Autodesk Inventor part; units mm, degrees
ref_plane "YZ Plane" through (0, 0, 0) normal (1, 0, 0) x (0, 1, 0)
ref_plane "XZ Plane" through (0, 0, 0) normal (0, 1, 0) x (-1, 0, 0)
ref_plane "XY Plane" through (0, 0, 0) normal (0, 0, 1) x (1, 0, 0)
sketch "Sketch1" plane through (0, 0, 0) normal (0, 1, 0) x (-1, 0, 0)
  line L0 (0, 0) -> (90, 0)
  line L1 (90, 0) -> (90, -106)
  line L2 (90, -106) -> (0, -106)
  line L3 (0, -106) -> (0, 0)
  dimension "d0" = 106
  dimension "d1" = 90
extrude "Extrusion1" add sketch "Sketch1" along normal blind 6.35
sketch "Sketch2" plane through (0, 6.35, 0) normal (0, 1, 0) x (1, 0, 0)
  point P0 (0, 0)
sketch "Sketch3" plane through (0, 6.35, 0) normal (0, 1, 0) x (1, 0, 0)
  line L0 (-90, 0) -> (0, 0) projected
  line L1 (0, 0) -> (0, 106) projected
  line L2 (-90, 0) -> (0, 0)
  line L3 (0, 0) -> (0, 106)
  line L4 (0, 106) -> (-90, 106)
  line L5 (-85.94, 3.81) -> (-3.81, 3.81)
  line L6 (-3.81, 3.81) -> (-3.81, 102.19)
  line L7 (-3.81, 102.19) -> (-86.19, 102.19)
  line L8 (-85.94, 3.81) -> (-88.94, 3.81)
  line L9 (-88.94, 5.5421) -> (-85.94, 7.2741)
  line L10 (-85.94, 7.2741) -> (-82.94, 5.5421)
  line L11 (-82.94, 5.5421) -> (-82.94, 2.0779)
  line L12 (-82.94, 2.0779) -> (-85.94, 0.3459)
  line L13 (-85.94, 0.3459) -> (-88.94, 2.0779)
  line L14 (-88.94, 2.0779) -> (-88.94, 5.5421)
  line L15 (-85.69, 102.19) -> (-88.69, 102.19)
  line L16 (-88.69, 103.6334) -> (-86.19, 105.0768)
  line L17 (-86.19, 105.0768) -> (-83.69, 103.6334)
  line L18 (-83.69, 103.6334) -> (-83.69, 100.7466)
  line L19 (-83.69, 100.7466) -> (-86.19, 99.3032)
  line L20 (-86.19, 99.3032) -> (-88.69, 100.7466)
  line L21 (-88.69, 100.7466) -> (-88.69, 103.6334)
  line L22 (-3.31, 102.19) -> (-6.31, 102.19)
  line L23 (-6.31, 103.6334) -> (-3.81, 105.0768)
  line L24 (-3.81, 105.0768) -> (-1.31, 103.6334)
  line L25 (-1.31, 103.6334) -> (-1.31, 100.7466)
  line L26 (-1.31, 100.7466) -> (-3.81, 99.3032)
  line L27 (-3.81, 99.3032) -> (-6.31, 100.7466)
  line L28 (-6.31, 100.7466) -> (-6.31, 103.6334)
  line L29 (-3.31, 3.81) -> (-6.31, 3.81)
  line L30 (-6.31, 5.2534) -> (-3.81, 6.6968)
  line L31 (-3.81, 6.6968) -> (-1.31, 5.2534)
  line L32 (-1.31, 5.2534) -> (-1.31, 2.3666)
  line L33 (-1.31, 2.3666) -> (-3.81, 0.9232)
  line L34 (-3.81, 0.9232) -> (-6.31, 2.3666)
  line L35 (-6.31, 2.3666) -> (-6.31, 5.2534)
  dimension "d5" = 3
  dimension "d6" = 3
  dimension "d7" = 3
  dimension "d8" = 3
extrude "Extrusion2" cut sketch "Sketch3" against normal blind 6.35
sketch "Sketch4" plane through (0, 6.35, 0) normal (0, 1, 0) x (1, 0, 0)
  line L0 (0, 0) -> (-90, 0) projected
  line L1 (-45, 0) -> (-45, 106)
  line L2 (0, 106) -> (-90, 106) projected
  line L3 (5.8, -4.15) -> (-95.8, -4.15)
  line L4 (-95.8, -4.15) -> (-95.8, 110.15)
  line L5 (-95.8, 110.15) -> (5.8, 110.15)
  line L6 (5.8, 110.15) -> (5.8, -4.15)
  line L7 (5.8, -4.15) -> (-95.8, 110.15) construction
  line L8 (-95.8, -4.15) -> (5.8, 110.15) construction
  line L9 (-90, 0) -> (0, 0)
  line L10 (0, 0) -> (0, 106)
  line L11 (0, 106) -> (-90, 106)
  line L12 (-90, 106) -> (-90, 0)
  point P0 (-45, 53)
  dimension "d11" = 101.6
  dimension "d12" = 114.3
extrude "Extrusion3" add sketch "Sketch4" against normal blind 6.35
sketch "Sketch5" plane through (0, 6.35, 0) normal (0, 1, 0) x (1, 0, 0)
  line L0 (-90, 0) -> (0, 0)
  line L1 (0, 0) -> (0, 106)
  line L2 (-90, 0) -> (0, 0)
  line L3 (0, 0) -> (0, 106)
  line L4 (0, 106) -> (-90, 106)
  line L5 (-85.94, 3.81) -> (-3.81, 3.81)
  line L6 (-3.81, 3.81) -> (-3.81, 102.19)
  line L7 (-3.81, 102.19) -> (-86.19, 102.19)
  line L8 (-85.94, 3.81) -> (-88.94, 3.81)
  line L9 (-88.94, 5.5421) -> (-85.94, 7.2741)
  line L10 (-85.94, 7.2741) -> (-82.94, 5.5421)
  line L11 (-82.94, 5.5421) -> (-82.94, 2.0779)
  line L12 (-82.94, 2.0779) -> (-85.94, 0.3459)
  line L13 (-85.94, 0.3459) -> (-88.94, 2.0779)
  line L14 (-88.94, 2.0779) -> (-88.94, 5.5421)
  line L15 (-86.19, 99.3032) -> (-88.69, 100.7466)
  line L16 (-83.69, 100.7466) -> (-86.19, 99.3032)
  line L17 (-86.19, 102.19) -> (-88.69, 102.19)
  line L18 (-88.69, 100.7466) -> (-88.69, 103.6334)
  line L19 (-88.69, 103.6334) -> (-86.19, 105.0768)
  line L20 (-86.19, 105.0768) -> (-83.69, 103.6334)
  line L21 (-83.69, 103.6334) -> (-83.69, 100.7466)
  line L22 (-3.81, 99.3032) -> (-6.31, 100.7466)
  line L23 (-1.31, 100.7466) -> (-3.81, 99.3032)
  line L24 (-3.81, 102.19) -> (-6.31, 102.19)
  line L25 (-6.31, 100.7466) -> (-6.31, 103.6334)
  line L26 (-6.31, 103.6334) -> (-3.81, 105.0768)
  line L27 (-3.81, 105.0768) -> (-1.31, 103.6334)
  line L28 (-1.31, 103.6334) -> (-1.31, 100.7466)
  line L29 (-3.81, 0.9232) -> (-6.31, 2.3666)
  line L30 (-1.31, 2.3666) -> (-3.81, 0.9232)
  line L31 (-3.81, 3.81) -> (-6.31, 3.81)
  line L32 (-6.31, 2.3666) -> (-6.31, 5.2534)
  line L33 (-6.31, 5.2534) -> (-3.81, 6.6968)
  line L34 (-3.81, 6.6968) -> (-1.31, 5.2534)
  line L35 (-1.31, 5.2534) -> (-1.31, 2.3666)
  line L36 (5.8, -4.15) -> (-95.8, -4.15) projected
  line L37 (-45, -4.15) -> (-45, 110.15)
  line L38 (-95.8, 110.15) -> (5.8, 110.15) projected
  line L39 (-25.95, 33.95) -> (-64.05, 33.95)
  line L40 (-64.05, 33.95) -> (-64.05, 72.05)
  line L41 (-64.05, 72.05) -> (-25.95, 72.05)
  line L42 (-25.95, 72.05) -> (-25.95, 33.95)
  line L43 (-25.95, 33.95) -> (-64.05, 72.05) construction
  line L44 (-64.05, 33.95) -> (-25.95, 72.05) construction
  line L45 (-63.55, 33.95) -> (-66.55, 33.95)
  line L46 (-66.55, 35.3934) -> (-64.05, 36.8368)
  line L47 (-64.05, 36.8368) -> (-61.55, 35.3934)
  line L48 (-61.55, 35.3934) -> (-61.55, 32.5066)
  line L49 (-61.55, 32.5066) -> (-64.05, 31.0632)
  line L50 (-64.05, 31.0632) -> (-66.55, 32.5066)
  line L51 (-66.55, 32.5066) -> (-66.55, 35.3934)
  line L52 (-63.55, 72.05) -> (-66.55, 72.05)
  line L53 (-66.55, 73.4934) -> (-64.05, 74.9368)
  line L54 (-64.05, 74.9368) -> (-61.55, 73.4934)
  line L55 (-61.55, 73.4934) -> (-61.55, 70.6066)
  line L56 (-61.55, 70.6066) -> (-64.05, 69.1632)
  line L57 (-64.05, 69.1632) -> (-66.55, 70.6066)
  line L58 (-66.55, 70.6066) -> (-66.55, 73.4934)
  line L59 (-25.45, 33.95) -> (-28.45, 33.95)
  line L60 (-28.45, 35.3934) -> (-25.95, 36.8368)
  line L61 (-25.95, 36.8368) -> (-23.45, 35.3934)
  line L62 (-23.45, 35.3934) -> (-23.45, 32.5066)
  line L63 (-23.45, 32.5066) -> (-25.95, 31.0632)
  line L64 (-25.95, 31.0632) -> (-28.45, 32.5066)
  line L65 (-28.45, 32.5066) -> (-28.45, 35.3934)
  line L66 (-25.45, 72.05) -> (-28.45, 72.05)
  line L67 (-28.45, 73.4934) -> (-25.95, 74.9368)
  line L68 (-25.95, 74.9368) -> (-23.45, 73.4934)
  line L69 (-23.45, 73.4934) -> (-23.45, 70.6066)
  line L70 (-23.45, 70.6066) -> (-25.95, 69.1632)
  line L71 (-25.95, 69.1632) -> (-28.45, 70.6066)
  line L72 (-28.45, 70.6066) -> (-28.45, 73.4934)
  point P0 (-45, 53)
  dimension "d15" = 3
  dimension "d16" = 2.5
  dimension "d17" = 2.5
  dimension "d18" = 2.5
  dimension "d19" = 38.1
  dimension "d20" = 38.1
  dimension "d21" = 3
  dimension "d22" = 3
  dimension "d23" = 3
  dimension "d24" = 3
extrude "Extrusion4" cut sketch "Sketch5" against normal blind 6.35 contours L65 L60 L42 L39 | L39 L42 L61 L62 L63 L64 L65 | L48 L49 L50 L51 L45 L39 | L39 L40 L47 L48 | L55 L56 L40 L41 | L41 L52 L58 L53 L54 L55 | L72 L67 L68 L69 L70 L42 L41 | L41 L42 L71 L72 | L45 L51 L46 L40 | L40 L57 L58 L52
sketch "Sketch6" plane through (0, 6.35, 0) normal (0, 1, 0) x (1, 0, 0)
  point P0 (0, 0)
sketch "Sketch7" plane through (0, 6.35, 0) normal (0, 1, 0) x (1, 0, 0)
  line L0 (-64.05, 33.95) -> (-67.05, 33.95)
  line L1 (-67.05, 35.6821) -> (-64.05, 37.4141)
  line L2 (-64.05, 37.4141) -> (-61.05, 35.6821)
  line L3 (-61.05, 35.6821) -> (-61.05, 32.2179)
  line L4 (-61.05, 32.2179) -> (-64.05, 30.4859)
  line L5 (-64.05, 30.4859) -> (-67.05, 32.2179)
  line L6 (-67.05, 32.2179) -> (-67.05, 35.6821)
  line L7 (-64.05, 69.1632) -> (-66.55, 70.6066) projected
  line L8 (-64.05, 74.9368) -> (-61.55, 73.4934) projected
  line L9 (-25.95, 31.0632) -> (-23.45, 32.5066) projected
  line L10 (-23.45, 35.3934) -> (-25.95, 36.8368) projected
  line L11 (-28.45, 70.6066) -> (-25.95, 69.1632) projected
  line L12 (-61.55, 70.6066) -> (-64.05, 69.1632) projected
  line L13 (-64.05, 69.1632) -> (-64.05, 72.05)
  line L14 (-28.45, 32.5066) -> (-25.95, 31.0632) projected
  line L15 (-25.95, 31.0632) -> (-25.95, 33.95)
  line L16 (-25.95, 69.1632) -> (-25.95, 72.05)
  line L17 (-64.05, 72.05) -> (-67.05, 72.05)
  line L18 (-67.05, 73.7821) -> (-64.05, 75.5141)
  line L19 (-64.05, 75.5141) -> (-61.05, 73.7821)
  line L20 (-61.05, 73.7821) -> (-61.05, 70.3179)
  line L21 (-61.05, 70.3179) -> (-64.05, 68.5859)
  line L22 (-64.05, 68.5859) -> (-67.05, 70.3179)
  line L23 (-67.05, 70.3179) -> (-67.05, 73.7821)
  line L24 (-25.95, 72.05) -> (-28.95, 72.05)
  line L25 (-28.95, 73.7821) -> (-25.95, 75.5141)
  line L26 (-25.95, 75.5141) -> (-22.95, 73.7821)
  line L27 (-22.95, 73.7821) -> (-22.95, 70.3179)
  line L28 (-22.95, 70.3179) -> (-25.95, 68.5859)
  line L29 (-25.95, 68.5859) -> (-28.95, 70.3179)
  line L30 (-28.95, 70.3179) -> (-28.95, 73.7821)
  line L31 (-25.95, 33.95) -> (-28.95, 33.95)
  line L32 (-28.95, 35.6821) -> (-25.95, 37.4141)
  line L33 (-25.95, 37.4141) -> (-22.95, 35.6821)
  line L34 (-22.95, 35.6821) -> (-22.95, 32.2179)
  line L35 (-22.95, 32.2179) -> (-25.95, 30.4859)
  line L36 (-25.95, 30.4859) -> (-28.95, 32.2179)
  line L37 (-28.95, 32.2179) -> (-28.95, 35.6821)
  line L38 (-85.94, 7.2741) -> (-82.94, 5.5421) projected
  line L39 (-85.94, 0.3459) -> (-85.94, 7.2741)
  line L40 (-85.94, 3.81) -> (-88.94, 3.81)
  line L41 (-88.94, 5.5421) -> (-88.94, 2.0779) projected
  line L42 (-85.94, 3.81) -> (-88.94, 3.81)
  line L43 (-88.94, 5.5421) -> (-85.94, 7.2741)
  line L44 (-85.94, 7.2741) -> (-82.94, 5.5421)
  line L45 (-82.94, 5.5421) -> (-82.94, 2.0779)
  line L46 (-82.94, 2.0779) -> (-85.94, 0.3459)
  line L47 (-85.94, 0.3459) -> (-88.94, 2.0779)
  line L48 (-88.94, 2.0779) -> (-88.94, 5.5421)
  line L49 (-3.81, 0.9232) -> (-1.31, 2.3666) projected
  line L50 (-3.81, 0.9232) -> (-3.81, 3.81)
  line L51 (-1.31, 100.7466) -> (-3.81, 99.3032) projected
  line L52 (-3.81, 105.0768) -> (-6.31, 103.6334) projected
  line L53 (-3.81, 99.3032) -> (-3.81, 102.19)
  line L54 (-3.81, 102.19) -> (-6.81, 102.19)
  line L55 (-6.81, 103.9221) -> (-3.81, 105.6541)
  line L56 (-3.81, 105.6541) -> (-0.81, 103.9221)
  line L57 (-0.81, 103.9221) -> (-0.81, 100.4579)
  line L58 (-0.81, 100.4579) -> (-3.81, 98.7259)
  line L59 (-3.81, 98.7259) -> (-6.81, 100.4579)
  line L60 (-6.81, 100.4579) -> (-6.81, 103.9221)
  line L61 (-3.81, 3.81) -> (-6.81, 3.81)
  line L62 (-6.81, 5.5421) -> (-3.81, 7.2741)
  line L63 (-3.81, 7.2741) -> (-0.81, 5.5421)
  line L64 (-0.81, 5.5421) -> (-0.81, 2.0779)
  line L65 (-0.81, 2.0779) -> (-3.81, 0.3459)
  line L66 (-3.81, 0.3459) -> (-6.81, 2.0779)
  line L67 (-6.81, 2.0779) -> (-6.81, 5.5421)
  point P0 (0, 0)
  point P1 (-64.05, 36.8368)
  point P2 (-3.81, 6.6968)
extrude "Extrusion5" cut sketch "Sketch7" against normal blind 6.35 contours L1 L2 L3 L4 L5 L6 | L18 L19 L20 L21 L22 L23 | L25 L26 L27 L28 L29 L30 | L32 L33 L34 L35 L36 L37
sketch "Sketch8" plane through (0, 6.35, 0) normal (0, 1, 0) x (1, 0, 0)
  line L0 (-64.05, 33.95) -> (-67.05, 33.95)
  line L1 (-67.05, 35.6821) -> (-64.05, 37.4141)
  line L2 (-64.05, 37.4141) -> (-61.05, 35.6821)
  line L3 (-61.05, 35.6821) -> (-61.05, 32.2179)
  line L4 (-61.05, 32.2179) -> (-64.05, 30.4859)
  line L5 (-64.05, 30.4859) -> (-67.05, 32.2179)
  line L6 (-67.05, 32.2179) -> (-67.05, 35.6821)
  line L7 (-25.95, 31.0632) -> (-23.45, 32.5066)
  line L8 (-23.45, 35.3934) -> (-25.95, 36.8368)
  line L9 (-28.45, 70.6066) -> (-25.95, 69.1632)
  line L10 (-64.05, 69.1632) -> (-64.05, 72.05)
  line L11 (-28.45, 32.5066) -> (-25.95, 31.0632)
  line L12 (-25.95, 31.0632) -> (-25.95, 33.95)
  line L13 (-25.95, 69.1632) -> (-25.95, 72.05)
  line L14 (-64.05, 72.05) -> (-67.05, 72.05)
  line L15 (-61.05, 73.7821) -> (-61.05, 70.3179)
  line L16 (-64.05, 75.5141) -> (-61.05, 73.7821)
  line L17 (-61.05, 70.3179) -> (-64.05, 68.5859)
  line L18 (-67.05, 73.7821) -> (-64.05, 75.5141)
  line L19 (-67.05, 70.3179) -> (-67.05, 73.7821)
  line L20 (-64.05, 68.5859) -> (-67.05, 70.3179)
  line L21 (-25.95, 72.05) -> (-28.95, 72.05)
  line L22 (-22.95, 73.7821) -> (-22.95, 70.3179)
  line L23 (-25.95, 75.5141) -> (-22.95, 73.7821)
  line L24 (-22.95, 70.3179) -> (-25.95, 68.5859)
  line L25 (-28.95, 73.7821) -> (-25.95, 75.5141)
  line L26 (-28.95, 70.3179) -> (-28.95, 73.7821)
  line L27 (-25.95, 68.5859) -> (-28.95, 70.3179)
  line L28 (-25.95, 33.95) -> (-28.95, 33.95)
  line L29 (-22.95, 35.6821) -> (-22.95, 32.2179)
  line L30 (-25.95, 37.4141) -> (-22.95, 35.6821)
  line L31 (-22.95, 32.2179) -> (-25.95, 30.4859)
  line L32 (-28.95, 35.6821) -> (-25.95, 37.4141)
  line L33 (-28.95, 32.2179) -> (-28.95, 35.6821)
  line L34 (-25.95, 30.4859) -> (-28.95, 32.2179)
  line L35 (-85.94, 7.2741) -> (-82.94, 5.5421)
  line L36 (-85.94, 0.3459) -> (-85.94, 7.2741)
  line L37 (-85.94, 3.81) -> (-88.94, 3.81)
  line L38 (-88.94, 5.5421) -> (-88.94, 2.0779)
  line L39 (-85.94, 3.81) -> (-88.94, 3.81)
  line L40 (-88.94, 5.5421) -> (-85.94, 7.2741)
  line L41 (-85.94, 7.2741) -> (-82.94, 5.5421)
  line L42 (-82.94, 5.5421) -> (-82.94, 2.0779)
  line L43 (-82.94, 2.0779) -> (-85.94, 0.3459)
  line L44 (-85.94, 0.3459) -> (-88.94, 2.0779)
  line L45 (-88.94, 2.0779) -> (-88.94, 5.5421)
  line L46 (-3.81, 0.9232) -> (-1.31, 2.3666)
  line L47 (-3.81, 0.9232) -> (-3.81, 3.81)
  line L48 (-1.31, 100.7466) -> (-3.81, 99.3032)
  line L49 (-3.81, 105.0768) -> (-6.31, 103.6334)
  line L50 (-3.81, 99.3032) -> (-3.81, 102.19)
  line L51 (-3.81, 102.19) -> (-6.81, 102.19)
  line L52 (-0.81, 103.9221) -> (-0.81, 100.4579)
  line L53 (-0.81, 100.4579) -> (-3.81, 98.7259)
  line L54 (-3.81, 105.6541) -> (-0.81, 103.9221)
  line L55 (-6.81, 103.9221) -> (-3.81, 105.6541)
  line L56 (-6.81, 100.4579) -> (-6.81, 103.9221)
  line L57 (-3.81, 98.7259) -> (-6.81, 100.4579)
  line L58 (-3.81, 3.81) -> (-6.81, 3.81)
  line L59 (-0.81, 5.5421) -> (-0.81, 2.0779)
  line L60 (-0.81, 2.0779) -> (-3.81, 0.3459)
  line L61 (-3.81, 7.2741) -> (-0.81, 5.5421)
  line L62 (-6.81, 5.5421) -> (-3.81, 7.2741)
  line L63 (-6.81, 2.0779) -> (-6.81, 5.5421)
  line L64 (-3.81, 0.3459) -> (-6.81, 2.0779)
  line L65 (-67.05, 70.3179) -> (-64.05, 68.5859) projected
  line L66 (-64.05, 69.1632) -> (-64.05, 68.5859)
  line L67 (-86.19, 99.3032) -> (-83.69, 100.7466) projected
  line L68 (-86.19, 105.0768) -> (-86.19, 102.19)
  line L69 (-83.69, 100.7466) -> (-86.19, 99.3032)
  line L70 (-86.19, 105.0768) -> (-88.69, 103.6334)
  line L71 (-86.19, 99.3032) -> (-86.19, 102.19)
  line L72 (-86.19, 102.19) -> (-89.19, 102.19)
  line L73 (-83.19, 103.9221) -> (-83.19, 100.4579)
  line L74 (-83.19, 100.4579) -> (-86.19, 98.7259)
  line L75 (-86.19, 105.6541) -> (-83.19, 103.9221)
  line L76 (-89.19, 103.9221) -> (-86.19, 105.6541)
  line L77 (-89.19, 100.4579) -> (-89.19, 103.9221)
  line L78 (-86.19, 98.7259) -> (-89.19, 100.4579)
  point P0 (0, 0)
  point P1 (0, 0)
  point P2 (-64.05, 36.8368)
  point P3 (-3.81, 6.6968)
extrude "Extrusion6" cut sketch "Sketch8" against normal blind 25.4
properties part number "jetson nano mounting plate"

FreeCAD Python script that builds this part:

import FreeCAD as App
import Part
import Sketcher
from FreeCAD import Vector
Q = App.Units.Quantity


def add_polygon(sketch, points):
    """Adds a closed chain of lines whose ends are joined by coincident constraints."""
    first, n = sketch.GeometryCount, len(points)
    for a, b in zip(points, points[1:] + points[:1]):
        sketch.addGeometry(Part.LineSegment(App.Vector(*a, 0), App.Vector(*b, 0)), False)
    for i in range(n):
        sketch.addConstraint(Sketcher.Constraint("Coincident", first + i, 2, first + (i + 1) % n, 1))

doc = App.newDocument("Part")
body = doc.addObject("PartDesign::Body", "Body")

sketch1 = doc.addObject("Sketcher::SketchObject", "Sketch")
body.addObject(sketch1)
sketch1.AttachmentSupport = (doc.XZ_Plane, [""])
sketch1.MapMode = "FlatFace"
add_polygon(sketch1, [(-90, 0), (0, 0), (0, -106), (-90, -106)])
sketch1.addConstraint([
    Sketcher.Constraint("Horizontal", 0),
    Sketcher.Constraint("Vertical", 1),
    Sketcher.Constraint("Horizontal", 2),
    Sketcher.Constraint("Vertical", 3),
    Sketcher.Constraint("Coincident", 0, 2, -1, 1),
    Sketcher.Constraint("DistanceX", 0, 1, 0, 2, Q("3.5433 in")),
    Sketcher.Constraint("DistanceY", 1, 2, 1, 1, Q("106 mm")),
])
pad1 = doc.addObject("PartDesign::Pad", "Pad")
body.addObject(pad1)
pad1.Profile = sketch1
pad1.Length = Q("0.25 in")
pad1.Reversed = True

sketch2 = doc.addObject("Sketcher::SketchObject", "Sketch001")
body.addObject(sketch2)
sketch2.AttachmentSupport = (doc.XZ_Plane, [""])
sketch2.MapMode = "FlatFace"
sketch2.AttachmentOffset = App.Placement(Vector(0, 0, -0.25 * 25.4), App.Rotation())
add_polygon(sketch2, [(-6.31, -5.2534), (-6.31, -2.3666), (-3.81, -0.9232), (-1.31, -2.3666), (-1.31, -5.2534), (-3.81, -6.6968)])
add_polygon(sketch2, [(-82.94, -2.0779), (-82.94, -5.5421), (-85.94, -7.2741), (-88.94, -5.5421), (-88.94, -2.0779), (-85.94, -0.3459)])
add_polygon(sketch2, [(-83.69, -100.7466), (-83.69, -103.6334), (-86.19, -105.0768), (-88.69, -103.6334), (-88.69, -100.7466), (-86.19, -99.3032)])
add_polygon(sketch2, [(-6.31, -100.7466), (-3.81, -99.3032), (-1.31, -100.7466), (-1.31, -103.6334), (-3.81, -105.0768), (-6.31, -103.6334)])
sketch2.addConstraint([
    Sketcher.Constraint("Vertical", 0),
    Sketcher.Constraint("Vertical", 3),
    Sketcher.Constraint("Vertical", 6),
    Sketcher.Constraint("Vertical", 9),
    Sketcher.Constraint("Vertical", 12),
    Sketcher.Constraint("Vertical", 15),
    Sketcher.Constraint("Vertical", 20),
    Sketcher.Constraint("Vertical", 23),
    Sketcher.Constraint("Parallel", 1, 4),
    Sketcher.Constraint("Parallel", 2, 5),
    Sketcher.Constraint("Parallel", 4, 7),
    Sketcher.Constraint("Parallel", 5, 8),
    Sketcher.Constraint("Parallel", 7, 10),
    Sketcher.Constraint("Parallel", 8, 11),
    Sketcher.Constraint("Parallel", 10, 13),
    Sketcher.Constraint("Parallel", 11, 14),
    Sketcher.Constraint("Parallel", 13, 16),
    Sketcher.Constraint("Parallel", 14, 17),
    Sketcher.Constraint("Parallel", 16, 18),
    Sketcher.Constraint("Parallel", 17, 19),
    Sketcher.Constraint("Parallel", 18, 21),
    Sketcher.Constraint("Parallel", 19, 22),
    Sketcher.Constraint("Horizontal", 0, 2, 2, 2),
    Sketcher.Constraint("Horizontal", 3, 2, 5, 2),
    Sketcher.Constraint("Horizontal", 6, 2, 8, 2),
    Sketcher.Constraint("Horizontal", 9, 2, 11, 2),
    Sketcher.Constraint("Horizontal", 12, 2, 14, 2),
    Sketcher.Constraint("Horizontal", 15, 2, 17, 2),
    Sketcher.Constraint("Horizontal", 16, 2, 18, 2),
    Sketcher.Constraint("Horizontal", 17, 2, 19, 2),
    Sketcher.Constraint("Horizontal", 14, 2, 20, 2),
    Sketcher.Constraint("Horizontal", 13, 2, 21, 2),
    Sketcher.Constraint("Horizontal", 20, 2, 22, 2),
    Sketcher.Constraint("Vertical", 1, 2, 4, 2),
    Sketcher.Constraint("Vertical", 4, 2, 18, 2),
    Sketcher.Constraint("Vertical", 3, 2, 19, 2),
    Sketcher.Constraint("Equal", 3, 12),
    Sketcher.Constraint("Angle", 1, Q("30.0004 deg")),
    Sketcher.Constraint("DistanceX", 7, 2, 6, 2, Q("0.1181 in")),
    Sketcher.Constraint("DistanceX", 1, 2, -1, 1, Q("0.15 in")),
    Sketcher.Constraint("DistanceY", 0, 1, 0, 2, Q("2.8868 mm")),
    Sketcher.Constraint("DistanceY", 6, 2, 6, 1, Q("3.4642 mm")),
    Sketcher.Constraint("DistanceY", 6, 2, -1, 1, Q("0.2182 in")),
    Sketcher.Constraint("DistanceX", 13, 2, -1, 1, Q("3.3933 in")),
    Sketcher.Constraint("DistanceY", 15, 2, -1, 1, Q("3.9664 in")),
    Sketcher.Constraint("DistanceY", 4, 2, 1, 2, Q("0.2273 in")),
    Sketcher.Constraint("DistanceY", 7, 2, 0, 2, Q("0.1932 in")),
    Sketcher.Constraint("DistanceX", 8, 2, 12, 2, Q("0.2067 in")),
])
pocket1 = doc.addObject("PartDesign::Pocket", "Pocket")
body.addObject(pocket1)
pocket1.Profile = sketch2
pocket1.Length = Q("0.25 in")
pocket1.Reversed = True

sketch3 = doc.addObject("Sketcher::SketchObject", "Sketch002")
body.addObject(sketch3)
sketch3.AttachmentSupport = (doc.XZ_Plane, [""])
sketch3.MapMode = "FlatFace"
sketch3.AttachmentOffset = App.Placement(Vector(0, 0, -0.25 * 25.4), App.Rotation())
add_polygon(sketch3, [(-95.8, 4.15), (5.8, 4.15), (5.8, -110.15), (-95.8, -110.15)])
add_polygon(sketch3, [(0, -106), (0, 0), (-90, 0), (-90, -106)])
sketch3.addConstraint([
    Sketcher.Constraint("Horizontal", 0),
    Sketcher.Constraint("Vertical", 1),
    Sketcher.Constraint("Horizontal", 2),
    Sketcher.Constraint("Vertical", 3),
    Sketcher.Constraint("Vertical", 4),
    Sketcher.Constraint("Horizontal", 5),
    Sketcher.Constraint("Vertical", 6),
    Sketcher.Constraint("Horizontal", 7),
    Sketcher.Constraint("Coincident", 4, 2, -1, 1),
    Sketcher.Constraint("DistanceX", 0, 1, 0, 2, Q("4 in")),
    Sketcher.Constraint("DistanceY", 1, 2, 1, 1, Q("4.5 in")),
    Sketcher.Constraint("DistanceX", 5, 2, 5, 1, Q("3.5433 in")),
    Sketcher.Constraint("DistanceY", 4, 1, 4, 2, Q("106 mm")),
    Sketcher.Constraint("DistanceX", -1, 1, 0, 2, Q("5.8 mm")),
    Sketcher.Constraint("DistanceY", -1, 1, 0, 2, Q("4.15 mm")),
])
pad2 = doc.addObject("PartDesign::Pad", "Pad001")
body.addObject(pad2)
pad2.Profile = sketch3
pad2.Length = Q("0.25 in")

sketch4 = doc.addObject("Sketcher::SketchObject", "Sketch003")
body.addObject(sketch4)
sketch4.AttachmentSupport = (doc.XZ_Plane, [""])
sketch4.MapMode = "FlatFace"
sketch4.AttachmentOffset = App.Placement(Vector(0, 0, -0.25 * 25.4), App.Rotation())
add_polygon(sketch4, [(-28.45, -35.3934), (-28.45, -32.5066), (-25.95, -31.0632), (-23.45, -32.5066), (-23.45, -35.3934), (-25.95, -36.8368)])
add_polygon(sketch4, [(-61.55, -32.5066), (-61.55, -35.3934), (-64.05, -36.8368), (-66.55, -35.3934), (-66.55, -32.5066), (-64.05, -31.0632)])
add_polygon(sketch4, [(-61.55, -70.6066), (-61.55, -73.4934), (-64.05, -74.9368), (-66.55, -73.4934), (-66.55, -70.6066), (-64.05, -69.1632)])
add_polygon(sketch4, [(-28.45, -73.4934), (-28.45, -70.6066), (-25.95, -69.1632), (-23.45, -70.6066), (-23.45, -73.4934), (-25.95, -74.9368)])
sketch4.addConstraint([
    Sketcher.Constraint("Vertical", 0),
    Sketcher.Constraint("Vertical", 3),
    Sketcher.Constraint("Vertical", 6),
    Sketcher.Constraint("Vertical", 9),
    Sketcher.Constraint("Vertical", 12),
    Sketcher.Constraint("Vertical", 15),
    Sketcher.Constraint("Vertical", 18),
    Sketcher.Constraint("Vertical", 21),
    Sketcher.Constraint("Parallel", 1, 4),
    Sketcher.Constraint("Parallel", 2, 5),
    Sketcher.Constraint("Parallel", 4, 7),
    Sketcher.Constraint("Parallel", 5, 8),
    Sketcher.Constraint("Parallel", 7, 10),
    Sketcher.Constraint("Parallel", 8, 11),
    Sketcher.Constraint("Parallel", 10, 13),
    Sketcher.Constraint("Parallel", 11, 14),
    Sketcher.Constraint("Parallel", 13, 16),
    Sketcher.Constraint("Parallel", 14, 17),
    Sketcher.Constraint("Parallel", 16, 19),
    Sketcher.Constraint("Parallel", 17, 20),
    Sketcher.Constraint("Parallel", 19, 22),
    Sketcher.Constraint("Parallel", 20, 23),
    Sketcher.Constraint("Horizontal", 0, 2, 2, 2),
    Sketcher.Constraint("Horizontal", 3, 2, 5, 2),
    Sketcher.Constraint("Horizontal", 5, 2, 6, 2),
    Sketcher.Constraint("Horizontal", 4, 2, 7, 2),
    Sketcher.Constraint("Horizontal", 6, 2, 8, 2),
    Sketcher.Constraint("Horizontal", 2, 2, 9, 2),
    Sketcher.Constraint("Horizontal", 1, 2, 10, 2),
    Sketcher.Constraint("Horizontal", 12, 2, 14, 2),
    Sketcher.Constraint("Horizontal", 15, 2, 17, 2),
    Sketcher.Constraint("Horizontal", 17, 2, 18, 2),
    Sketcher.Constraint("Horizontal", 16, 2, 19, 2),
    Sketcher.Constraint("Horizontal", 18, 2, 20, 2),
    Sketcher.Constraint("Horizontal", 14, 2, 21, 2),
    Sketcher.Constraint("Horizontal", 13, 2, 22, 2),
    Sketcher.Constraint("Vertical", 1, 2, 4, 2),
    Sketcher.Constraint("Vertical", 11, 2, 12, 2),
    Sketcher.Constraint("Vertical", 10, 2, 13, 2),
    Sketcher.Constraint("Vertical", 5, 2, 18, 2),
    Sketcher.Constraint("Equal", 9, 12),
    Sketcher.Constraint("DistanceX", 6, 2, 3, 2, Q("1.5 in")),
    Sketcher.Constraint("DistanceY", 12, 2, 6, 2, Q("1.5 in")),
    Sketcher.Constraint("Angle", 1, Q("30.0004 deg")),
    Sketcher.Constraint("DistanceX", 0, 2, 1, 2, Q("2.5 mm")),
    Sketcher.Constraint("DistanceY", 0, 1, 0, 2, Q("2.8868 mm")),
    Sketcher.Constraint("DistanceX", 0, 2, -1, 1, Q("28.45 mm")),
    Sketcher.Constraint("DistanceY", 0, 2, -1, 1, Q("32.5066 mm")),
])
pocket2 = doc.addObject("PartDesign::Pocket", "Pocket001")
body.addObject(pocket2)
pocket2.Profile = sketch4
pocket2.Length = Q("0.25 in")
pocket2.Reversed = True

sketch5 = doc.addObject("Sketcher::SketchObject", "Sketch004")
body.addObject(sketch5)
sketch5.AttachmentSupport = (doc.XZ_Plane, [""])
sketch5.MapMode = "FlatFace"
sketch5.AttachmentOffset = App.Placement(Vector(0, 0, -0.25 * 25.4), App.Rotation())
add_polygon(sketch5, [(-64.05, -37.4141), (-67.05, -35.6821), (-67.05, -32.2179), (-64.05, -30.4859), (-61.05, -32.2179), (-61.05, -35.6821)])
add_polygon(sketch5, [(-64.05, -75.5141), (-67.05, -73.7821), (-67.05, -70.3179), (-64.05, -68.5859), (-61.05, -70.3179), (-61.05, -73.7821)])
add_polygon(sketch5, [(-25.95, -75.5141), (-28.95, -73.7821), (-28.95, -70.3179), (-25.95, -68.5859), (-22.95, -70.3179), (-22.95, -73.7821)])
add_polygon(sketch5, [(-25.95, -37.4141), (-28.95, -35.6821), (-28.95, -32.2179), (-25.95, -30.4859), (-22.95, -32.2179), (-22.95, -35.6821)])
sketch5.addConstraint([
    Sketcher.Constraint("Vertical", 1),
    Sketcher.Constraint("Vertical", 4),
    Sketcher.Constraint("Vertical", 7),
    Sketcher.Constraint("Vertical", 10),
    Sketcher.Constraint("Vertical", 13),
    Sketcher.Constraint("Vertical", 16),
    Sketcher.Constraint("Vertical", 19),
    Sketcher.Constraint("Vertical", 22),
    Sketcher.Constraint("Parallel", 0, 3),
    Sketcher.Constraint("Parallel", 2, 5),
    Sketcher.Constraint("Parallel", 3, 6),
    Sketcher.Constraint("Parallel", 5, 8),
    Sketcher.Constraint("Parallel", 6, 9),
    Sketcher.Constraint("Parallel", 8, 11),
    Sketcher.Constraint("Parallel", 9, 12),
    Sketcher.Constraint("Parallel", 11, 14),
    Sketcher.Constraint("Parallel", 12, 15),
    Sketcher.Constraint("Parallel", 14, 17),
    Sketcher.Constraint("Parallel", 15, 18),
    Sketcher.Constraint("Parallel", 17, 20),
    Sketcher.Constraint("Parallel", 18, 21),
    Sketcher.Constraint("Parallel", 20, 23),
    Sketcher.Constraint("Horizontal", 1, 2, 3, 2),
    Sketcher.Constraint("Horizontal", 0, 2, 4, 2),
    Sketcher.Constraint("Horizontal", 7, 2, 9, 2),
    Sketcher.Constraint("Horizontal", 6, 2, 10, 2),
    Sketcher.Constraint("Horizontal", 10, 2, 12, 2),
    Sketcher.Constraint("Horizontal", 9, 2, 13, 2),
    Sketcher.Constraint("Horizontal", 8, 2, 14, 2),
    Sketcher.Constraint("Horizontal", 13, 2, 15, 2),
    Sketcher.Constraint("Horizontal", 12, 2, 16, 2),
    Sketcher.Constraint("Horizontal", 4, 2, 18, 2),
    Sketcher.Constraint("Horizontal", 3, 2, 19, 2),
    Sketcher.Constraint("Horizontal", 2, 2, 20, 2),
    Sketcher.Constraint("Horizontal", 19, 2, 21, 2),
    Sketcher.Constraint("Horizontal", 18, 2, 22, 2),
    Sketcher.Constraint("Vertical", 2, 2, 5, 2),
    Sketcher.Constraint("Vertical", 1, 2, 6, 2),
    Sketcher.Constraint("Vertical", 5, 2, 8, 2),
    Sketcher.Constraint("Vertical", 13, 2, 18, 2),
    Sketcher.Constraint("Equal", 4, 7),
    Sketcher.Constraint("Angle", 0, Q("150.0007 deg")),
    Sketcher.Constraint("DistanceY", 6, 2, 0, 2, Q("1.5 in")),
    Sketcher.Constraint("DistanceX", 6, 2, 12, 2, Q("1.5 in")),
    Sketcher.Constraint("DistanceY", 5, 2, -1, 1, Q("1.473 in")),
    Sketcher.Constraint("DistanceY", 1, 1, 1, 2, Q("3.4642 mm")),
    Sketcher.Constraint("DistanceY", 0, 2, -1, 1, Q("1.4048 in")),
    Sketcher.Constraint("DistanceX", 0, 2, -1, 1, Q("67.05 mm")),
])
pocket3 = doc.addObject("PartDesign::Pocket", "Pocket002")
body.addObject(pocket3)
pocket3.Profile = sketch5
pocket3.Length = Q("0.25 in")
pocket3.Reversed = True

sketch6 = doc.addObject("Sketcher::SketchObject", "Sketch005")
body.addObject(sketch6)
sketch6.AttachmentSupport = (doc.XZ_Plane, [""])
sketch6.MapMode = "FlatFace"
sketch6.AttachmentOffset = App.Placement(Vector(0, 0, -0.25 * 25.4), App.Rotation())
add_polygon(sketch6, [(-64.05, -37.4141), (-67.05, -35.6821), (-67.05, -32.2179), (-64.05, -30.4859), (-61.05, -32.2179), (-61.05, -35.6821)])
add_polygon(sketch6, [(-67.05, -70.3179), (-64.05, -68.5859), (-61.05, -70.3179), (-61.05, -73.7821), (-64.05, -75.5141), (-67.05, -73.7821)])
add_polygon(sketch6, [(-22.95, -70.3179), (-22.95, -73.7821), (-25.95, -75.5141), (-28.95, -73.7821), (-28.95, -70.3179), (-25.95, -68.5859)])
add_polygon(sketch6, [(-22.95, -32.2179), (-22.95, -35.6821), (-25.95, -37.4141), (-28.95, -35.6821), (-28.95, -32.2179), (-25.95, -30.4859)])
add_polygon(sketch6, [(-82.94, -5.5421), (-85.94, -7.2741), (-88.94, -5.5421), (-88.94, -2.0779), (-85.94, -0.3459), (-82.94, -2.0779)])
add_polygon(sketch6, [(-0.81, -100.4579), (-0.81, -103.9221), (-3.81, -105.6541), (-6.81, -103.9221), (-6.81, -100.4579), (-3.81, -98.7259)])
add_polygon(sketch6, [(-0.81, -2.0779), (-0.81, -5.5421), (-3.81, -7.2741), (-6.81, -5.5421), (-6.81, -2.0779), (-3.81, -0.3459)])
add_polygon(sketch6, [(-83.19, -100.4579), (-83.19, -103.9221), (-86.19, -105.6541), (-89.19, -103.9221), (-89.19, -100.4579), (-86.19, -98.7259)])
sketch6.addConstraint([
    Sketcher.Constraint("Vertical", 1),
    Sketcher.Constraint("Vertical", 4),
    Sketcher.Constraint("Vertical", 8),
    Sketcher.Constraint("Vertical", 11),
    Sketcher.Constraint("Vertical", 12),
    Sketcher.Constraint("Vertical", 15),
    Sketcher.Constraint("Vertical", 18),
    Sketcher.Constraint("Vertical", 21),
    Sketcher.Constraint("Vertical", 26),
    Sketcher.Constraint("Vertical", 29),
    Sketcher.Constraint("Vertical", 30),
    Sketcher.Constraint("Vertical", 33),
    Sketcher.Constraint("Vertical", 36),
    Sketcher.Constraint("Vertical", 39),
    Sketcher.Constraint("Vertical", 42),
    Sketcher.Constraint("Vertical", 45),
    Sketcher.Constraint("Parallel", 0, 3),
    Sketcher.Constraint("Parallel", 2, 5),
    Sketcher.Constraint("Parallel", 5, 6),
    Sketcher.Constraint("Parallel", 3, 7),
    Sketcher.Constraint("Parallel", 6, 9),
    Sketcher.Constraint("Parallel", 7, 10),
    Sketcher.Constraint("Parallel", 9, 13),
    Sketcher.Constraint("Parallel", 10, 14),
    Sketcher.Constraint("Parallel", 13, 16),
    Sketcher.Constraint("Parallel", 14, 17),
    Sketcher.Constraint("Parallel", 16, 19),
    Sketcher.Constraint("Parallel", 17, 20),
    Sketcher.Constraint("Parallel", 19, 22),
    Sketcher.Constraint("Parallel", 20, 23),
    Sketcher.Constraint("Parallel", 22, 24),
    Sketcher.Constraint("Parallel", 23, 25),
    Sketcher.Constraint("Parallel", 24, 27),
    Sketcher.Constraint("Parallel", 25, 28),
    Sketcher.Constraint("Parallel", 27, 31),
    Sketcher.Constraint("Parallel", 28, 32),
    Sketcher.Constraint("Parallel", 31, 34),
    Sketcher.Constraint("Parallel", 32, 35),
    Sketcher.Constraint("Parallel", 34, 37),
    Sketcher.Constraint("Parallel", 35, 38),
    Sketcher.Constraint("Parallel", 37, 40),
    Sketcher.Constraint("Parallel", 38, 41),
    Sketcher.Constraint("Parallel", 40, 43),
    Sketcher.Constraint("Parallel", 41, 44),
    Sketcher.Constraint("Parallel", 43, 46),
    Sketcher.Constraint("Parallel", 44, 47),
    Sketcher.Constraint("Horizontal", 1, 2, 3, 2),
    Sketcher.Constraint("Horizontal", 0, 2, 4, 2),
    Sketcher.Constraint("Horizontal", 8, 2, 10, 2),
    Sketcher.Constraint("Horizontal", 7, 2, 11, 2),
    Sketcher.Constraint("Horizontal", 10, 2, 12, 2),
    Sketcher.Constraint("Horizontal", 9, 2, 13, 2),
    Sketcher.Constraint("Horizontal", 12, 2, 14, 2),
    Sketcher.Constraint("Horizontal", 11, 2, 15, 2),
    Sketcher.Constraint("Horizontal", 6, 2, 16, 2),
    Sketcher.Constraint("Horizontal", 4, 2, 18, 2),
    Sketcher.Constraint("Horizontal", 5, 2, 19, 2),
    Sketcher.Constraint("Horizontal", 18, 2, 20, 2),
    Sketcher.Constraint("Horizontal", 3, 2, 21, 2),
    Sketcher.Constraint("Horizontal", 2, 2, 22, 2),
    Sketcher.Constraint("Horizontal", 26, 2, 28, 2),
    Sketcher.Constraint("Horizontal", 25, 2, 29, 2),
    Sketcher.Constraint("Horizontal", 30, 2, 32, 2),
    Sketcher.Constraint("Horizontal", 33, 2, 35, 2),
    Sketcher.Constraint("Horizontal", 29, 2, 36, 2),
    Sketcher.Constraint("Horizontal", 24, 2, 37, 2),
    Sketcher.Constraint("Horizontal", 36, 2, 38, 2),
    Sketcher.Constraint("Horizontal", 28, 2, 39, 2),
    Sketcher.Constraint("Horizontal", 27, 2, 40, 2),
    Sketcher.Constraint("Horizontal", 32, 2, 42, 2),
    Sketcher.Constraint("Horizontal", 31, 2, 43, 2),
    Sketcher.Constraint("Horizontal", 42, 2, 44, 2),
    Sketcher.Constraint("Horizontal", 35, 2, 45, 2),
    Sketcher.Constraint("Horizontal", 34, 2, 46, 2),
    Sketcher.Constraint("Vertical", 2, 2, 5, 2),
    Sketcher.Constraint("Vertical", 5, 2, 6, 2),
    Sketcher.Constraint("Vertical", 4, 2, 7, 2),
    Sketcher.Constraint("Vertical", 17, 2, 18, 2),
    Sketcher.Constraint("Vertical", 35, 2, 36, 2),
    Sketcher.Constraint("Vertical", 34, 2, 37, 2),
    Sketcher.Constraint("Equal", 4, 8),
    Sketcher.Constraint("Equal", 21, 26),
    Sketcher.Constraint("Equal", 29, 30),
    Sketcher.Constraint("Equal", 23, 24),
    Sketcher.Constraint("Angle", 0, Q("150.0007 deg")),
    Sketcher.Constraint("DistanceY", 7, 2, 3, 2, Q("1.5 in")),
    Sketcher.Constraint("DistanceX", 8, 2, 12, 2, Q("1.5 in")),
    Sketcher.Constraint("DistanceX", 31, 2, -1, 1, Q("0.15 in")),
    Sketcher.Constraint("DistanceY", 5, 2, -1, 1, Q("1.473 in")),
    Sketcher.Constraint("DistanceY", 0, 2, 26, 2, Q("1.323 in")),
    Sketcher.Constraint("DistanceY", 30, 2, 17, 2, Q("1.323 in")),
    Sketcher.Constraint("DistanceY", 1, 1, 1, 2, Q("3.4642 mm")),
    Sketcher.Constraint("DistanceY", 0, 2, -1, 1, Q("1.4048 in")),
    Sketcher.Constraint("DistanceX", 42, 2, -1, 1, Q("3.2752 in")),
    Sketcher.Constraint("DistanceX", 24, 2, 1, 2, Q("0.7437 in")),
    Sketcher.Constraint("DistanceX", 0, 2, -1, 1, Q("67.05 mm")),
])
pocket4 = doc.addObject("PartDesign::Pocket", "Pocket003")
body.addObject(pocket4)
pocket4.Profile = sketch6
pocket4.Length = Q("1 in")
pocket4.Reversed = True

doc.recompute()
